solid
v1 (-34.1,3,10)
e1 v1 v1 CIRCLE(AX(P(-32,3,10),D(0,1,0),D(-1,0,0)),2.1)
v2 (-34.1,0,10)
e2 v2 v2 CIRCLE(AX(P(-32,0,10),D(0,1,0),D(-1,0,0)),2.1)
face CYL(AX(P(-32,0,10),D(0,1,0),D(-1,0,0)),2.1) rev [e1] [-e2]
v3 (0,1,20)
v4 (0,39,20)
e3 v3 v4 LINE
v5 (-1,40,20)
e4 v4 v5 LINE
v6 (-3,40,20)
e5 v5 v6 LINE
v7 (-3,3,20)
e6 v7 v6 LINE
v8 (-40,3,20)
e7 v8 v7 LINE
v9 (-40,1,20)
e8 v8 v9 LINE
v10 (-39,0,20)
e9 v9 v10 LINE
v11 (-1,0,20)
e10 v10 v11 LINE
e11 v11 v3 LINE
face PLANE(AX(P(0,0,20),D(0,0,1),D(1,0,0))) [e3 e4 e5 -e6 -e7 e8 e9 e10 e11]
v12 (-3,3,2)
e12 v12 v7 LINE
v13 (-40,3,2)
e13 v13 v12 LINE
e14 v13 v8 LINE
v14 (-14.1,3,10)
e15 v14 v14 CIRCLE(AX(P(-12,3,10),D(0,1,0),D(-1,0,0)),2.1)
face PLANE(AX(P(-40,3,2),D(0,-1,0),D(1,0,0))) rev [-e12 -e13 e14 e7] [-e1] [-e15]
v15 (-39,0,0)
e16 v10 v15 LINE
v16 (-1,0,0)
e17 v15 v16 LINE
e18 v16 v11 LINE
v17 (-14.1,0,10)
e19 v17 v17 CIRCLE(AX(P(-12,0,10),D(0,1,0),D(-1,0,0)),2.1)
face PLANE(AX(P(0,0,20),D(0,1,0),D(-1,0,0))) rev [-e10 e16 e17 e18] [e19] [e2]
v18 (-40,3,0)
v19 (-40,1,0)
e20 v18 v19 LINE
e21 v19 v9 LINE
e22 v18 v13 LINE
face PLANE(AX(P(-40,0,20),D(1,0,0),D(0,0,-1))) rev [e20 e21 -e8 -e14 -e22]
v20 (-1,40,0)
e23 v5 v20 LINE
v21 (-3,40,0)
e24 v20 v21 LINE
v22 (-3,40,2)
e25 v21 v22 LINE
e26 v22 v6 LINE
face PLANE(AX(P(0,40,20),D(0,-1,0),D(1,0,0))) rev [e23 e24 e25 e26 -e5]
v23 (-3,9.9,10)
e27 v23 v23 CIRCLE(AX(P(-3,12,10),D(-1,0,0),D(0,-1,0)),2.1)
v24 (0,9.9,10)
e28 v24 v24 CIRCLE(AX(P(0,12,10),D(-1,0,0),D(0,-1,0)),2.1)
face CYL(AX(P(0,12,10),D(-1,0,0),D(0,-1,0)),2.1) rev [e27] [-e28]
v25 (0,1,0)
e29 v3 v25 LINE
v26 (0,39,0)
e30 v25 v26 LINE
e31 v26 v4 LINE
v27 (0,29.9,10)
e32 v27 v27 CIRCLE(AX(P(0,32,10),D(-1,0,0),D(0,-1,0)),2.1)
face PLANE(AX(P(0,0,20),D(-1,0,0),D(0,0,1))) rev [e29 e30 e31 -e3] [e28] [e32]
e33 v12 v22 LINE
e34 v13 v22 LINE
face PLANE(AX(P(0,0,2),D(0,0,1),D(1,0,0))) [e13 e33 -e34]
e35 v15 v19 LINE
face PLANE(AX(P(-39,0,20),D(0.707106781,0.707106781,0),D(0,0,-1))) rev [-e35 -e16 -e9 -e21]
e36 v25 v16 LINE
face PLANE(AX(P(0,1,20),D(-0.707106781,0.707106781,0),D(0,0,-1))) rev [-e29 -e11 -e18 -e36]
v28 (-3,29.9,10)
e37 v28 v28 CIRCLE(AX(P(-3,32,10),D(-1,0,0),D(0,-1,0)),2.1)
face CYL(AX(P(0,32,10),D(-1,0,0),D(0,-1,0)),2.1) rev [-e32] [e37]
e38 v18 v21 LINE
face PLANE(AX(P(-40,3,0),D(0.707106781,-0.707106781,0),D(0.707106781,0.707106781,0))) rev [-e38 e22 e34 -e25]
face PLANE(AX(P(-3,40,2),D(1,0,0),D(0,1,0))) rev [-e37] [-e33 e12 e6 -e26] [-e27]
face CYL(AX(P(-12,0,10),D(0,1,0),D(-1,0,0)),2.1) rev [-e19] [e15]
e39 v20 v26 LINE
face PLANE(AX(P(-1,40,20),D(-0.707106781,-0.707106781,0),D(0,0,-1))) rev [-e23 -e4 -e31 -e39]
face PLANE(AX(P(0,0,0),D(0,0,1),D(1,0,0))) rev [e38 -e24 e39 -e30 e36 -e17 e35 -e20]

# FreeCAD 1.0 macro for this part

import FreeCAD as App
import Part
import Sketcher
Q = App.Units.Quantity


def edges_at(feature, points):
    """Names of the edges that pass closest to the given points."""
    edges = feature.Shape.Edges
    near = lambda p: min(range(len(edges)), key=lambda i: edges[i].distToShape(Part.Vertex(*p))[0])
    return sorted({f"Edge{near(p) + 1}" for p in points})

doc = App.newDocument("Part")
body = doc.addObject("PartDesign::Body", "Body")

sketch1 = doc.addObject("Sketcher::SketchObject", "Sketch")
body.addObject(sketch1)
sketch1.AttachmentSupport = (doc.XY_Plane, [""])
sketch1.MapMode = "FlatFace"
sketch1.addGeometry(Part.LineSegment(App.Vector(-40, 40, 0), App.Vector(-40, 0, 0)), False)
sketch1.addGeometry(Part.LineSegment(App.Vector(-40, 0, 0), App.Vector(0, 0, 0)), False)
sketch1.addGeometry(Part.LineSegment(App.Vector(0, 0, 0), App.Vector(0, 40, 0)), False)
sketch1.addGeometry(Part.LineSegment(App.Vector(0, 40, 0), App.Vector(-40, 40, 0)), False)
sketch1.addConstraint(Sketcher.Constraint("Coincident", 0, 2, 1, 1))
sketch1.addConstraint(Sketcher.Constraint("Coincident", 1, 2, 2, 1))
sketch1.addConstraint(Sketcher.Constraint("Coincident", 2, 2, 3, 1))
sketch1.addConstraint(Sketcher.Constraint("Coincident", 3, 2, 0, 1))
sketch1.addConstraint(Sketcher.Constraint("Vertical", 0))
sketch1.addConstraint(Sketcher.Constraint("Horizontal", 1))
sketch1.addConstraint(Sketcher.Constraint("Vertical", 2))
sketch1.addConstraint(Sketcher.Constraint("Horizontal", 3))
sketch1.addConstraint(Sketcher.Constraint("Coincident", 1, 2, -1, 1))
sketch1.addConstraint(Sketcher.Constraint("Equal", 3, 0))
sketch1.addConstraint(Sketcher.Constraint("DistanceX", 1, 1, 1, 2, Q("40 mm")))
pad1 = doc.addObject("PartDesign::Pad", "Pad")
body.addObject(pad1)
pad1.Profile = sketch1
pad1.Length = 20

sketch2 = doc.addObject("Sketcher::SketchObject", "Sketch001")
body.addObject(sketch2)
sketch2.AttachmentSupport = (doc.XY_Plane, [""])
sketch2.MapMode = "FlatFace"
sketch2.AttachmentOffset = App.Placement(App.Vector(0, 0, 20), App.Rotation())
sketch2.addGeometry(Part.LineSegment(App.Vector(-40, 40, 0), App.Vector(-40, 3, 0)), False)
sketch2.addGeometry(Part.LineSegment(App.Vector(-40, 3, 0), App.Vector(-3, 3, 0)), False)
sketch2.addGeometry(Part.LineSegment(App.Vector(-3, 3, 0), App.Vector(-3, 40, 0)), False)
sketch2.addGeometry(Part.LineSegment(App.Vector(-3, 40, 0), App.Vector(-40, 40, 0)), False)
sketch2.addConstraint(Sketcher.Constraint("Coincident", 0, 2, 1, 1))
sketch2.addConstraint(Sketcher.Constraint("Coincident", 1, 2, 2, 1))
sketch2.addConstraint(Sketcher.Constraint("Coincident", 2, 2, 3, 1))
sketch2.addConstraint(Sketcher.Constraint("Coincident", 3, 2, 0, 1))
sketch2.addConstraint(Sketcher.Constraint("Vertical", 0))
sketch2.addConstraint(Sketcher.Constraint("Horizontal", 1))
sketch2.addConstraint(Sketcher.Constraint("Vertical", 2))
sketch2.addConstraint(Sketcher.Constraint("Horizontal", 3))
sketch2.addConstraint(Sketcher.Constraint("Equal", 3, 0))
sketch2.addConstraint(Sketcher.Constraint("DistanceX", 1, 1, 1, 2, Q("37 mm")))
sketch2.addConstraint(Sketcher.Constraint("DistanceX", 0, 2, -1, 1, Q("40 mm")))
sketch2.addConstraint(Sketcher.Constraint("DistanceY", -1, 1, 0, 2, Q("3 mm")))
pocket1 = doc.addObject("PartDesign::Pocket", "Pocket")
body.addObject(pocket1)
pocket1.Profile = sketch2
pocket1.Length = 18

sketch3 = doc.addObject("Sketcher::SketchObject", "Sketch002")
body.addObject(sketch3)
sketch3.AttachmentSupport = (doc.XY_Plane, [""])
sketch3.MapMode = "FlatFace"
sketch3.AttachmentOffset = App.Placement(App.Vector(0, 0, 2), App.Rotation())
sketch3.addGeometry(Part.LineSegment(App.Vector(-40, 3, 0), App.Vector(-3, 40, 0)), False)
sketch3.addGeometry(Part.LineSegment(App.Vector(-3, 40, 0), App.Vector(-40, 40, 0)), False)
sketch3.addGeometry(Part.LineSegment(App.Vector(-40, 40, 0), App.Vector(-40, 3, 0)), False)
sketch3.addConstraint(Sketcher.Constraint("Coincident", 0, 2, 1, 1))
sketch3.addConstraint(Sketcher.Constraint("Coincident", 1, 2, 2, 1))
sketch3.addConstraint(Sketcher.Constraint("Coincident", 2, 2, 0, 1))
sketch3.addConstraint(Sketcher.Constraint("Horizontal", 1))
sketch3.addConstraint(Sketcher.Constraint("Vertical", 2))
sketch3.addConstraint(Sketcher.Constraint("Equal", 1, 2))
sketch3.addConstraint(Sketcher.Constraint("DistanceX", 1, 2, 1, 1, Q("37 mm")))
sketch3.addConstraint(Sketcher.Constraint("DistanceX", 0, 2, -1, 1, Q("3 mm")))
sketch3.addConstraint(Sketcher.Constraint("DistanceY", -1, 1, 0, 2, Q("40 mm")))
pocket2 = doc.addObject("PartDesign::Pocket", "Pocket001")
body.addObject(pocket2)
pocket2.Profile = sketch3
pocket2.Type = "ThroughAll"
doc.recompute()

chamfer = doc.addObject("PartDesign::Chamfer", "Chamfer")
body.addObject(chamfer)
chamfer.Base = (pocket2, edges_at(pocket2, [(0, 0, 10), (-40, 0, 10), (0, 40, 10)]))
chamfer.Size = 1

sketch4 = doc.addObject("Sketcher::SketchObject", "Sketch003")
body.addObject(sketch4)
sketch4.AttachmentSupport = (doc.XZ_Plane, [""])
sketch4.MapMode = "FlatFace"
sketch4.AttachmentOffset = App.Placement(App.Vector(0, 0, -3), App.Rotation())
sketch4.addGeometry(Part.Circle(App.Vector(-12, 10, 0), App.Vector(0, 0, 1), 2.1), False)
sketch4.addGeometry(Part.Circle(App.Vector(-32, 10, 0), App.Vector(0, 0, 1), 2.1), False)
sketch4.addConstraint(Sketcher.Constraint("Equal", 0, 1))
sketch4.addConstraint(Sketcher.Constraint("Horizontal", 0, 3, 1, 3))
sketch4.addConstraint(Sketcher.Constraint("Diameter", 0, Q("4.2 mm")))
sketch4.addConstraint(Sketcher.Constraint("DistanceX", 0, 3, -1, 1, Q("12 mm")))
sketch4.addConstraint(Sketcher.Constraint("DistanceY", -1, 1, 0, 3, Q("10 mm")))
sketch4.addConstraint(Sketcher.Constraint("DistanceX", 1, 3, -1, 1, Q("32 mm")))
pocket3 = doc.addObject("PartDesign::Pocket", "Pocket002")
body.addObject(pocket3)
pocket3.Profile = sketch4
pocket3.Type = "ThroughAll"
pocket3.Reversed = True

sketch5 = doc.addObject("Sketcher::SketchObject", "Sketch004")
body.addObject(sketch5)
sketch5.AttachmentSupport = (doc.YZ_Plane, [""])
sketch5.MapMode = "FlatFace"
sketch5.AttachmentOffset = App.Placement(App.Vector(0, 0, -3), App.Rotation())
sketch5.addGeometry(Part.Circle(App.Vector(12, 10, 0), App.Vector(0, 0, 1), 2.1), False)
sketch5.addGeometry(Part.Circle(App.Vector(32, 10, 0), App.Vector(0, 0, 1), 2.1), False)
sketch5.addConstraint(Sketcher.Constraint("Equal", 0, 1))
sketch5.addConstraint(Sketcher.Constraint("Horizontal", 0, 3, 1, 3))
sketch5.addConstraint(Sketcher.Constraint("Diameter", 0, Q("4.2 mm")))
sketch5.addConstraint(Sketcher.Constraint("DistanceX", -1, 1, 0, 3, Q("12 mm")))
sketch5.addConstraint(Sketcher.Constraint("DistanceY", -1, 1, 0, 3, Q("10 mm")))
sketch5.addConstraint(Sketcher.Constraint("DistanceX", -1, 1, 1, 3, Q("32 mm")))
pocket4 = doc.addObject("PartDesign::Pocket", "Pocket003")
body.addObject(pocket4)
pocket4.Profile = sketch5
pocket4.Type = "ThroughAll"
pocket4.Reversed = True

doc.recompute()
